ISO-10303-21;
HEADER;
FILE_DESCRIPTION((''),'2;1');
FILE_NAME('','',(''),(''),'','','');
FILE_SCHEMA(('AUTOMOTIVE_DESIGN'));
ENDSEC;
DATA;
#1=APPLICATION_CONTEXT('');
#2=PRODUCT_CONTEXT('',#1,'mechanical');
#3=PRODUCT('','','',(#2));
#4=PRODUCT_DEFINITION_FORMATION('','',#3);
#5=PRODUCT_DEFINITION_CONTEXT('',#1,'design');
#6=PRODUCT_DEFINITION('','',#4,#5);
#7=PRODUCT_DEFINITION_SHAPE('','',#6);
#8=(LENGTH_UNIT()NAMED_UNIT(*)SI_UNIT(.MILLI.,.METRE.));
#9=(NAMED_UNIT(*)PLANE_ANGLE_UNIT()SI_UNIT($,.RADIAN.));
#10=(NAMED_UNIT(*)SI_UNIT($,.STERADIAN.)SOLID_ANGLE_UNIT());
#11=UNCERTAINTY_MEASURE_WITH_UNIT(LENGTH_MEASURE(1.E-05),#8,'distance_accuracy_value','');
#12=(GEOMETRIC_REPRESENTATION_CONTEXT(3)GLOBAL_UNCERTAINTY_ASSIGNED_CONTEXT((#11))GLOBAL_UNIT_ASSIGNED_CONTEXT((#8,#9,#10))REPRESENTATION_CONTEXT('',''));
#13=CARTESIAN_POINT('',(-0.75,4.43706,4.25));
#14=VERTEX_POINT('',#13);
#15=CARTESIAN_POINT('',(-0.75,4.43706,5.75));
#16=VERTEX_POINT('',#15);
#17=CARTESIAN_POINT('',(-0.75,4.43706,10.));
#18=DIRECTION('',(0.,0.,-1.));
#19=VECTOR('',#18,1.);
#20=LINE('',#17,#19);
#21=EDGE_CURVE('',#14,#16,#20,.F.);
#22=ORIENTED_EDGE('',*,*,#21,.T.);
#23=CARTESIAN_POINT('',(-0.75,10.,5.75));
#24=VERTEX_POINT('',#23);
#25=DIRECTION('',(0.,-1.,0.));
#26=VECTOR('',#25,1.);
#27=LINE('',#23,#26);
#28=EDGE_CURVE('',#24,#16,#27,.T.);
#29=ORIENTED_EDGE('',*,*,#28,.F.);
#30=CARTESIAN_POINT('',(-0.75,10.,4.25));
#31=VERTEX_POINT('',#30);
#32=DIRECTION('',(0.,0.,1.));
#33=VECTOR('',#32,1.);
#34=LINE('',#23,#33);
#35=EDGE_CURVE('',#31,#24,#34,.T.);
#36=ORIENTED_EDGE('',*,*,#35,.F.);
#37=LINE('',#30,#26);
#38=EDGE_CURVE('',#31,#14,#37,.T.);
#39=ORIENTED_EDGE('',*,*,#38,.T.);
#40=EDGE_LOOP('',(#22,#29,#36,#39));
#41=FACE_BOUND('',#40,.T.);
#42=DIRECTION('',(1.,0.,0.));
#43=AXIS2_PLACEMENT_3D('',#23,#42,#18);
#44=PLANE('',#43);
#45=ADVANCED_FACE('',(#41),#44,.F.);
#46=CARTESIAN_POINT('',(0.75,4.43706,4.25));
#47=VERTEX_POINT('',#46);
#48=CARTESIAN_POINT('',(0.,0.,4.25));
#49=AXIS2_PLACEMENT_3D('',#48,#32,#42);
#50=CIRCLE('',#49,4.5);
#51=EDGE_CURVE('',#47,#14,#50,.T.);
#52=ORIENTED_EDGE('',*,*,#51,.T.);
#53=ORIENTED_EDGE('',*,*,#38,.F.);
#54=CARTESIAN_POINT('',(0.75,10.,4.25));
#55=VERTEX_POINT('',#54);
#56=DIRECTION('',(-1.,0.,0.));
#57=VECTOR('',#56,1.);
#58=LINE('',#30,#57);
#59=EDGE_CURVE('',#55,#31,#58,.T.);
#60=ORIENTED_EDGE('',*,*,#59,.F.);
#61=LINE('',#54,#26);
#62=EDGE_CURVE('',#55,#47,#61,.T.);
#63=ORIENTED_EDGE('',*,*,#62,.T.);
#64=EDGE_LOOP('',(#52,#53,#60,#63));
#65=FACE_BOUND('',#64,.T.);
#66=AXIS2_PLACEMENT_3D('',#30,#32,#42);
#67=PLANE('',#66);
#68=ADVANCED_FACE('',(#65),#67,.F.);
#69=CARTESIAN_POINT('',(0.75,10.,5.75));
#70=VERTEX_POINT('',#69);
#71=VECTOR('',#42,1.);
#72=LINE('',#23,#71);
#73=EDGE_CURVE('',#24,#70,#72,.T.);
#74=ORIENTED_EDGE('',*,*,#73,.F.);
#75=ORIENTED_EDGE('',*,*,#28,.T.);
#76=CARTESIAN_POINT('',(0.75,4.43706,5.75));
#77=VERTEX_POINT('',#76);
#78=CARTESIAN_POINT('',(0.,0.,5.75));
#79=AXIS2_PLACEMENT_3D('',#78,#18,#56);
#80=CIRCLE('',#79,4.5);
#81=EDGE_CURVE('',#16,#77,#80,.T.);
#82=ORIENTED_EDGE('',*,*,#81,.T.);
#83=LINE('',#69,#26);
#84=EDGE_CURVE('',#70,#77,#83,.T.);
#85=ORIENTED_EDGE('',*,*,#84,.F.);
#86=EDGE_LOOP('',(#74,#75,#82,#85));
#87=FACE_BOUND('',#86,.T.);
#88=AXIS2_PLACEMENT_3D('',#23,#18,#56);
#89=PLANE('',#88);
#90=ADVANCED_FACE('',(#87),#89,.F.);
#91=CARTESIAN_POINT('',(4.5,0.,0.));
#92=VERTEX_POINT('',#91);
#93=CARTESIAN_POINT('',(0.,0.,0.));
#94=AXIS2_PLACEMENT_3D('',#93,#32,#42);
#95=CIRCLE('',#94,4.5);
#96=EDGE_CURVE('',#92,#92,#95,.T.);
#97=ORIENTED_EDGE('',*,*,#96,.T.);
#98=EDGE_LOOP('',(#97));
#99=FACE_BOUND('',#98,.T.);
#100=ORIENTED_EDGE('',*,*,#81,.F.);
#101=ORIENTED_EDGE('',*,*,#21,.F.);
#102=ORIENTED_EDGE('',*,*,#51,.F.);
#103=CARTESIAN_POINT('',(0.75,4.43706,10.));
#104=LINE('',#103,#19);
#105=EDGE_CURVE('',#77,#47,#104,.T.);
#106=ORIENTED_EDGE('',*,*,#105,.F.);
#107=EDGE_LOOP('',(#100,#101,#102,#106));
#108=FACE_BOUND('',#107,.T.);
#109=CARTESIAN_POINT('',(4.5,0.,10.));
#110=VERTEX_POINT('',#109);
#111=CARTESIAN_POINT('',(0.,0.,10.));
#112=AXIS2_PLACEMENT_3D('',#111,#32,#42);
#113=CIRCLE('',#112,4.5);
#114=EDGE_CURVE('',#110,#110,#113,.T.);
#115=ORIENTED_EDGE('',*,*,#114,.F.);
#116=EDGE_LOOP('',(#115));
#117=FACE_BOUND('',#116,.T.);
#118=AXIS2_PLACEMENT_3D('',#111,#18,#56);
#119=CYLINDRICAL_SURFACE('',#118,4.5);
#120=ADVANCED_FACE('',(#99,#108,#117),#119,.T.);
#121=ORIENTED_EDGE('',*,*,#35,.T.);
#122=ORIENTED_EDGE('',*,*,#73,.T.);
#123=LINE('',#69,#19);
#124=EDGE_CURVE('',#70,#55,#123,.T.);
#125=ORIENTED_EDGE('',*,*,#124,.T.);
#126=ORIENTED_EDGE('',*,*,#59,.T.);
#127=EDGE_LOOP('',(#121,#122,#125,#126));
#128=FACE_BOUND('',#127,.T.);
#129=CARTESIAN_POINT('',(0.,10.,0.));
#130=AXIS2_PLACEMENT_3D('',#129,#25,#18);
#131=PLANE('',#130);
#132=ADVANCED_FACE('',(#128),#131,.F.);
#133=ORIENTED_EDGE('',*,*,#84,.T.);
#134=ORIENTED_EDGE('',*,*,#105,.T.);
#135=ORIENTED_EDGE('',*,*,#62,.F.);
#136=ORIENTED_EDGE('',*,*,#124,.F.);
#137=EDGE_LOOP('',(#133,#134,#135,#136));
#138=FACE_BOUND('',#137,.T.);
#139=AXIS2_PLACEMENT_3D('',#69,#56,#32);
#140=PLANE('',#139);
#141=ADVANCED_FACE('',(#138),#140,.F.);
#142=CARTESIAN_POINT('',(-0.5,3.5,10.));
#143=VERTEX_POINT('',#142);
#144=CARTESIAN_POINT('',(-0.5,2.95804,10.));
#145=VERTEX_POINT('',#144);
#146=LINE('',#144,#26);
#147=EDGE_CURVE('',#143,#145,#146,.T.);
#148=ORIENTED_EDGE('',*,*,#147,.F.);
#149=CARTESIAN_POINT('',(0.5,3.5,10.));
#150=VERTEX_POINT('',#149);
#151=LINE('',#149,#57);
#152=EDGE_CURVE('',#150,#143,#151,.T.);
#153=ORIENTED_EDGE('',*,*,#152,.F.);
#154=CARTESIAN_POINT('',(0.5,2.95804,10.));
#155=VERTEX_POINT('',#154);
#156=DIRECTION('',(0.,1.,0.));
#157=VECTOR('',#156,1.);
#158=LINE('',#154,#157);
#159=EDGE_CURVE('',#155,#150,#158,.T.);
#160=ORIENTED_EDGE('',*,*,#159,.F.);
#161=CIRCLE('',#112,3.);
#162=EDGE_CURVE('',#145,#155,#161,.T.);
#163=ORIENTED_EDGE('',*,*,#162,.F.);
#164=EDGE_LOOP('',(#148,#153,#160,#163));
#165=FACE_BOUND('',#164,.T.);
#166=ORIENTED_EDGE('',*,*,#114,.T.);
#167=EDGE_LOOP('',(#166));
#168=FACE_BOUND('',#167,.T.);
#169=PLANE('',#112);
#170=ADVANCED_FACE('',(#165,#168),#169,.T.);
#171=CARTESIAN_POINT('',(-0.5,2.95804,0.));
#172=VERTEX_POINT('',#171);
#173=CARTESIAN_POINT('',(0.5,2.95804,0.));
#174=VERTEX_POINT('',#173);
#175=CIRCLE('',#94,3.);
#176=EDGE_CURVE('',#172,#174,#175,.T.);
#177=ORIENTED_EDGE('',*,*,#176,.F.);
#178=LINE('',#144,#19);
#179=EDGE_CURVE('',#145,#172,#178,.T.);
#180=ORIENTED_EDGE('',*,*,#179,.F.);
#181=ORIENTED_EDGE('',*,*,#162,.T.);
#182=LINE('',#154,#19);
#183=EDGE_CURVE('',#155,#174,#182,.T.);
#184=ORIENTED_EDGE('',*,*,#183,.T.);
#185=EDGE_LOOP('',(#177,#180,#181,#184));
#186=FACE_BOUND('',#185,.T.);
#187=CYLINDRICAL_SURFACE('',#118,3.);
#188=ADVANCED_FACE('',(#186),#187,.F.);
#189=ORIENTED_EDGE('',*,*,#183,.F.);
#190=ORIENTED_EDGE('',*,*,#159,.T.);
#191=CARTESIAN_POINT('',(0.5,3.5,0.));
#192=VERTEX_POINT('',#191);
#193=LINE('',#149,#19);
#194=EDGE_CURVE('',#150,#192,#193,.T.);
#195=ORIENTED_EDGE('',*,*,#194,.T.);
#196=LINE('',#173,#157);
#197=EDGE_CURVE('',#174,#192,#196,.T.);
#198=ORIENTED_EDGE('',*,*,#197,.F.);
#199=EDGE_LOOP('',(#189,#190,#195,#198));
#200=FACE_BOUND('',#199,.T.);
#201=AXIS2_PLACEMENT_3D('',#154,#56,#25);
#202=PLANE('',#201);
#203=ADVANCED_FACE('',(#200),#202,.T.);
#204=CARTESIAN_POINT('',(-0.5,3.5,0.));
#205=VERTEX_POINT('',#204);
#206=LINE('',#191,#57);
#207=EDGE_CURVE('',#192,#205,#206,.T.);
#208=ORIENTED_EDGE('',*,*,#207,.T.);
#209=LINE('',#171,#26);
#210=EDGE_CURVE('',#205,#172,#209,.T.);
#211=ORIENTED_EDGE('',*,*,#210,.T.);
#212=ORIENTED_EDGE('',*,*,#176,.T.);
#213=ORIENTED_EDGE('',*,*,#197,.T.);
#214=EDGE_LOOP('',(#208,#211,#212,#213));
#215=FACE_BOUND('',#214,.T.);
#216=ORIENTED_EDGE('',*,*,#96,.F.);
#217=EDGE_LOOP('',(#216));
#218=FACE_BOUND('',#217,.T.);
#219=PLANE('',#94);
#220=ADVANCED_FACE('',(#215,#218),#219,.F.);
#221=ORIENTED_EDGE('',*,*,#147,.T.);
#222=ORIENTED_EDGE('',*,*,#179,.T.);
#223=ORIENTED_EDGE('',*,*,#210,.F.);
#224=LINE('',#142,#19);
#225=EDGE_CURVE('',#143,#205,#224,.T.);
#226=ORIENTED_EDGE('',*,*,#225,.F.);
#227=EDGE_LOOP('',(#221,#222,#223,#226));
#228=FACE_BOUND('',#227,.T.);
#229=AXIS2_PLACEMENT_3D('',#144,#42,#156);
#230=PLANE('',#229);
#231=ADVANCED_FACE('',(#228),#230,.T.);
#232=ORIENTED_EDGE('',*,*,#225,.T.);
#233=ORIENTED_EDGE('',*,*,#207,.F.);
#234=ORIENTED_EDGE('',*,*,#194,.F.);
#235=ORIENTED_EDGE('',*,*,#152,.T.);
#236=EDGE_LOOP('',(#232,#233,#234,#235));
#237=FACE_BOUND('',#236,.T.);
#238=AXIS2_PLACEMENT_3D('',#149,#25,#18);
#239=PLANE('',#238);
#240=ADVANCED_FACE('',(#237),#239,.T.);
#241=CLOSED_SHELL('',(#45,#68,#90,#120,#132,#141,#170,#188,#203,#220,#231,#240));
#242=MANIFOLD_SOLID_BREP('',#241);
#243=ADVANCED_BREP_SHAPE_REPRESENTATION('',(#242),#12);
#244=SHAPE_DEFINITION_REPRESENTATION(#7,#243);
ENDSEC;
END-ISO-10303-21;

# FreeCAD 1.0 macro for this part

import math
import FreeCAD as App
import Part
import Sketcher
Q = App.Units.Quantity

doc = App.newDocument("Part")
body = doc.addObject("PartDesign::Body", "Body")

# Sketch on XY plane
sketch1 = body.newObject("Sketcher::SketchObject", "Sketch")
sketch1.AttachmentSupport = (doc.getObject("XY_Plane"), [""])
sketch1.MapMode = "FlatFace"
sketch1.addGeometry([
    Part.Circle(App.Vector(0, 0, 0), App.Vector(0, 0, 1), 4.5),  # 0
    Part.LineSegment(App.Vector(0.5, 3.5, 0), App.Vector(0.5, 3, 0)),  # 1
    Part.ArcOfCircle(Part.Circle(App.Vector(0, 0, 0), App.Vector(0, 0, 1), 3), math.radians(100), math.radians(440)),  # 2
    Part.LineSegment(App.Vector(-0.5, 3, 0), App.Vector(-0.5, 3.5, 0)),  # 3
    Part.LineSegment(App.Vector(-0.5, 3.5, 0), App.Vector(0.5, 3.5, 0)),  # 4
], False)
sketch1.addConstraint([
    Sketcher.Constraint("Coincident", 1, 2, 2, 2),
    Sketcher.Constraint("Coincident", 2, 1, 3, 1),
    Sketcher.Constraint("Coincident", 3, 2, 4, 1),
    Sketcher.Constraint("Coincident", 4, 2, 1, 1),
    Sketcher.Constraint("Vertical", 1),
    Sketcher.Constraint("Vertical", 3),
    Sketcher.Constraint("Horizontal", 4),
    Sketcher.Constraint("Coincident", 0, 3, -1, 1),
    Sketcher.Constraint("Coincident", 2, 3, -1, 1),
    Sketcher.Constraint("Horizontal", 1, 2, 2, 1),
    Sketcher.Constraint("Diameter", 0, Q("9 mm")),
    Sketcher.Constraint("Radius", 2, Q("3 mm")),
    Sketcher.Constraint("DistanceX", 4, 1, 4, 2, Q("1 mm")),
    Sketcher.Constraint("DistanceY", -1, 1, 3, 2, Q("3.5 mm")),
])
pad1 = body.newObject("PartDesign::Pad", "Pad")
pad1.Profile = sketch1
pad1.Length = 10

# Sketch on XZ plane
sketch2 = body.newObject("Sketcher::SketchObject", "Sketch001")
sketch2.AttachmentSupport = (doc.getObject("XZ_Plane"), [""])
sketch2.MapMode = "FlatFace"
sketch2.AttachmentOffset = App.Placement(App.Vector(0, 0, -4), App.Rotation())
sketch2.addGeometry([
    Part.LineSegment(App.Vector(-0.8, 4.2, 0), App.Vector(-0.8, 5.8, 0)),
    Part.LineSegment(App.Vector(-0.8, 5.8, 0), App.Vector(0.8, 5.8, 0)),
    Part.LineSegment(App.Vector(0.8, 5.8, 0), App.Vector(0.8, 4.2, 0)),
    Part.LineSegment(App.Vector(0.8, 4.2, 0), App.Vector(-0.8, 4.2, 0)),
], False)
sketch2.addConstraint([
    Sketcher.Constraint("Coincident", 0, 2, 1, 1),
    Sketcher.Constraint("Coincident", 1, 2, 2, 1),
    Sketcher.Constraint("Coincident", 2, 2, 3, 1),
    Sketcher.Constraint("Coincident", 3, 2, 0, 1),
    Sketcher.Constraint("Vertical", 0),
    Sketcher.Constraint("Horizontal", 1),
    Sketcher.Constraint("Vertical", 2),
    Sketcher.Constraint("Horizontal", 3),
    Sketcher.Constraint("Equal", 3, 0),
    Sketcher.Constraint("DistanceX", 1, 1, 1, 2, Q("1.5 mm")),
    Sketcher.Constraint("DistanceX", 0, 2, -1, 1, Q("0.75 mm")),
    Sketcher.Constraint("DistanceY", -1, 1, 0, 2, Q("5.75 mm")),
])
pad2 = body.newObject("PartDesign::Pad", "Pad001")
pad2.Profile = sketch2
pad2.Length = 6
pad2.Reversed = True

doc.recompute()
